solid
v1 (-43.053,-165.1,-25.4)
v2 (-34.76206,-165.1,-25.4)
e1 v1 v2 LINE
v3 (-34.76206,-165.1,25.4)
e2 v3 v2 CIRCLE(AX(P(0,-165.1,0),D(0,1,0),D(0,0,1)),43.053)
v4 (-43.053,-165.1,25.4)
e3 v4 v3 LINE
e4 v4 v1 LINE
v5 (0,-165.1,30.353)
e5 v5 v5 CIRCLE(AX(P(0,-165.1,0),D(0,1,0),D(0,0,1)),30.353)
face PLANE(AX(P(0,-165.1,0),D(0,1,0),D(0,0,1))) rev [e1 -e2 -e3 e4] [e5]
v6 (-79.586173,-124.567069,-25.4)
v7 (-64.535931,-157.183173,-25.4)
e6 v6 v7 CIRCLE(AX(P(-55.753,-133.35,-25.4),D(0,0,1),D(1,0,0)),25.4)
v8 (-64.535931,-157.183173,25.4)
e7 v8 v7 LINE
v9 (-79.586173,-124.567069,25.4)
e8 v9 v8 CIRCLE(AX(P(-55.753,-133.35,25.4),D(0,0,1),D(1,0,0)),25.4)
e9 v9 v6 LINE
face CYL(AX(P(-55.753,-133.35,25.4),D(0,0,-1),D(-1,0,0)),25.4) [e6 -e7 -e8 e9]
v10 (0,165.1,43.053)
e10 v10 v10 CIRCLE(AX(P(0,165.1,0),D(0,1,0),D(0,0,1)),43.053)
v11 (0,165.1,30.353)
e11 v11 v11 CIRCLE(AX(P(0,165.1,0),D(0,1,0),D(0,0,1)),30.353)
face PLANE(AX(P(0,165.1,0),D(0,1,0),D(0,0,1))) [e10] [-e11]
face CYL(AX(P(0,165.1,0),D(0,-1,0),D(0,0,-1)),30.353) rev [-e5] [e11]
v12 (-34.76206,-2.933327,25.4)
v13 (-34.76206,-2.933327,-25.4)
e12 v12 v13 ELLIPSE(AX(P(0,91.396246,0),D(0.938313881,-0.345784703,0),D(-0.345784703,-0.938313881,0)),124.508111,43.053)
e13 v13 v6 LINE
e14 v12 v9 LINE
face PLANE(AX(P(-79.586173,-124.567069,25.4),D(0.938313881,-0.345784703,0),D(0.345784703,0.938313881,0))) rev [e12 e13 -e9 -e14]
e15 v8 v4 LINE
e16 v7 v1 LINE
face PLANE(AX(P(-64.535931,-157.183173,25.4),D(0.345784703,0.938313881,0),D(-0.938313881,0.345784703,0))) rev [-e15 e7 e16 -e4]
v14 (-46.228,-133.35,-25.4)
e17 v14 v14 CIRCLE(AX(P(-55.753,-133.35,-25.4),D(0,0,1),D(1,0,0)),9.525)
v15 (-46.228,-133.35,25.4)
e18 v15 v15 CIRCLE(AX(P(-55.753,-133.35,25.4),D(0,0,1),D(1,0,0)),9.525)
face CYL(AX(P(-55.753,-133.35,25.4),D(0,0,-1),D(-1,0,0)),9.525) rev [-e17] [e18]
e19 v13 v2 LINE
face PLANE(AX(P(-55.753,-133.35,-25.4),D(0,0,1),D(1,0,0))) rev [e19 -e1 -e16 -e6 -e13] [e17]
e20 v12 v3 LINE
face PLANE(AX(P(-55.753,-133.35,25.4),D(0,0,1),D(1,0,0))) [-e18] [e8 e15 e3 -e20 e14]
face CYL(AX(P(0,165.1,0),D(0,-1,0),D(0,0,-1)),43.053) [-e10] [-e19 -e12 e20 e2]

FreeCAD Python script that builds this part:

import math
import FreeCAD as App
import Part
import Sketcher
from FreeCAD import Vector
Q = App.Units.Quantity

doc = App.newDocument("Part")
body = doc.addObject("PartDesign::Body", "Body")

# Sketch on XZ plane
sketch1 = body.newObject("Sketcher::SketchObject", "Sketch")
sketch1.AttachmentSupport = (doc.getObject("XZ_Plane"), [""])
sketch1.MapMode = "FlatFace"
sketch1.addGeometry(Part.Circle(Vector(0, 0, 0), Vector(0, 0, 1), 43), False)
sketch1.addGeometry(Part.Circle(Vector(0, 0, 0), Vector(0, 0, 1), 30), False)
sketch1.addConstraint(Sketcher.Constraint("Coincident", 0, 3, -1, 1))
sketch1.addConstraint(Sketcher.Constraint("Coincident", 1, 3, -1, 1))
sketch1.addConstraint(Sketcher.Constraint("Diameter", 0, Q("3.39 in")))
sketch1.addConstraint(Sketcher.Constraint("Diameter", 1, Q("2.39 in")))
pad1 = body.newObject("PartDesign::Pad", "Pad")
pad1.Profile = sketch1
pad1.Length = Q("13 in")
pad1.Midplane = True

# Sketch on XY plane
sketch2 = body.newObject("Sketcher::SketchObject", "Sketch001")
sketch2.AttachmentSupport = (doc.getObject("XY_Plane"), [""])
sketch2.MapMode = "FlatFace"
sketch2.addGeometry(Part.LineSegment(Vector(-65, -157, 0), Vector(-43, -165, 0)), False)
sketch2.addGeometry(Part.LineSegment(Vector(-43, -165, 0), Vector(-30, -165, 0)), False)
sketch2.addGeometry(Part.LineSegment(Vector(-30, -165, 0), Vector(-30, 9, 0)), False)
sketch2.addGeometry(Part.LineSegment(Vector(-30, 9, 0), Vector(-80, -125, 0)), False)
sketch2.addGeometry(Part.ArcOfCircle(Part.Circle(Vector(-56, -133, 0), Vector(0, 0, 1), 25), math.radians(160), math.radians(250)), False)
sketch2.addGeometry(Part.Circle(Vector(-56, -133, 0), Vector(0, 0, 1), 10), False)
sketch2.addConstraint(Sketcher.Constraint("Coincident", 0, 2, 1, 1))
sketch2.addConstraint(Sketcher.Constraint("Coincident", 1, 2, 2, 1))
sketch2.addConstraint(Sketcher.Constraint("Coincident", 2, 2, 3, 1))
sketch2.addConstraint(Sketcher.Constraint("Tangent", 3, 2, 4, 1))
sketch2.addConstraint(Sketcher.Constraint("Tangent", 4, 2, 0, 1))
sketch2.addConstraint(Sketcher.Constraint("Horizontal", 1))
sketch2.addConstraint(Sketcher.Constraint("Vertical", 2))
sketch2.addConstraint(Sketcher.Constraint("Coincident", 5, 3, 4, 3))
sketch2.addConstraint(Sketcher.Constraint("Perpendicular", 0, 3))
sketch2.addConstraint(Sketcher.Constraint("Radius", 4, Q("1 in")))
sketch2.addConstraint(Sketcher.Constraint("Diameter", 5, Q("0.75 in")))
sketch2.addConstraint(Sketcher.Constraint("DistanceX", 1, 1, 1, 2, Q("0.5 in")))
sketch2.addConstraint(Sketcher.Constraint("DistanceX", 5, 3, 1, 2, Q("1 in")))
sketch2.addConstraint(Sketcher.Constraint("DistanceY", 0, 2, -1, 1, Q("6.5 in")))
sketch2.addConstraint(Sketcher.Constraint("DistanceY", 4, 3, -1, 1, Q("5.25 in")))
sketch2.addConstraint(Sketcher.Constraint("DistanceX", 4, 3, -1, 1, Q("2.195 in")))
pad2 = body.newObject("PartDesign::Pad", "Pad001")
pad2.Profile = sketch2
pad2.Length = Q("2 in")
pad2.Midplane = True

doc.recompute()
